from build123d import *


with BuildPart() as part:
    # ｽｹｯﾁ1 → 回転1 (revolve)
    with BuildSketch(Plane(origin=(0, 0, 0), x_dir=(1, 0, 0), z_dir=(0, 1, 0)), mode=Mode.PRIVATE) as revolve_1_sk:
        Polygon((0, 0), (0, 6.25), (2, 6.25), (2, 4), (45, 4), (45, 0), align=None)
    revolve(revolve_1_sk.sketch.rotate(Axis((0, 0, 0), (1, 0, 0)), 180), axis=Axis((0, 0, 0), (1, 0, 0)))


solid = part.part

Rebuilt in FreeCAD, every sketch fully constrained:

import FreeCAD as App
import Part
import Sketcher

V = App.Vector

doc = App.newDocument("Part")
body = doc.addObject("PartDesign::Body", "Body")

# Sketch on XZ plane
sketch1 = body.newObject("Sketcher::SketchObject", "Sketch")
sketch1.AttachmentSupport = (doc.getObject("XZ_Plane"), [""])
sketch1.MapMode = "FlatFace"
sketch1.addGeometry(Part.LineSegment(V(0, -6.25, 0), V(0, 0, 0)), False)
sketch1.addGeometry(Part.LineSegment(V(0, 0, 0), V(45, 0, 0)), False)
sketch1.addGeometry(Part.LineSegment(V(45, 0, 0), V(45, -4, 0)), False)
sketch1.addGeometry(Part.LineSegment(V(45, -4, 0), V(2, -4, 0)), False)
sketch1.addGeometry(Part.LineSegment(V(2, -4, 0), V(2, -6.25, 0)), False)
sketch1.addGeometry(Part.LineSegment(V(2, -6.25, 0), V(0, -6.25, 0)), False)
sketch1.addConstraint(Sketcher.Constraint("Coincident", 0, 2, 1, 1))
sketch1.addConstraint(Sketcher.Constraint("Coincident", 1, 2, 2, 1))
sketch1.addConstraint(Sketcher.Constraint("Coincident", 2, 2, 3, 1))
sketch1.addConstraint(Sketcher.Constraint("Coincident", 3, 2, 4, 1))
sketch1.addConstraint(Sketcher.Constraint("Coincident", 4, 2, 5, 1))
sketch1.addConstraint(Sketcher.Constraint("Coincident", 5, 2, 0, 1))
sketch1.addConstraint(Sketcher.Constraint("Vertical", 0))
sketch1.addConstraint(Sketcher.Constraint("Horizontal", 1))
sketch1.addConstraint(Sketcher.Constraint("Vertical", 2))
sketch1.addConstraint(Sketcher.Constraint("Horizontal", 3))
sketch1.addConstraint(Sketcher.Constraint("Vertical", 4))
sketch1.addConstraint(Sketcher.Constraint("Horizontal", 5))
sketch1.addConstraint(Sketcher.Constraint("Coincident", 0, 2, -1, 1))
sketch1.addConstraint(Sketcher.Constraint("DistanceX", 1, 1, 1, 2, 45.0))
sketch1.addConstraint(Sketcher.Constraint("DistanceX", 3, 2, 3, 1, 43.0))
sketch1.addConstraint(Sketcher.Constraint("DistanceY", 2, 2, 2, 1, 4.0))
sketch1.addConstraint(Sketcher.Constraint("DistanceY", 0, 1, 0, 2, 6.25))
revolution = body.newObject("PartDesign::Revolution", "Revolution")
revolution.Profile = sketch1
revolution.ReferenceAxis = (sketch1, ["H_Axis"])
revolution.Angle = 360

doc.recompute()
